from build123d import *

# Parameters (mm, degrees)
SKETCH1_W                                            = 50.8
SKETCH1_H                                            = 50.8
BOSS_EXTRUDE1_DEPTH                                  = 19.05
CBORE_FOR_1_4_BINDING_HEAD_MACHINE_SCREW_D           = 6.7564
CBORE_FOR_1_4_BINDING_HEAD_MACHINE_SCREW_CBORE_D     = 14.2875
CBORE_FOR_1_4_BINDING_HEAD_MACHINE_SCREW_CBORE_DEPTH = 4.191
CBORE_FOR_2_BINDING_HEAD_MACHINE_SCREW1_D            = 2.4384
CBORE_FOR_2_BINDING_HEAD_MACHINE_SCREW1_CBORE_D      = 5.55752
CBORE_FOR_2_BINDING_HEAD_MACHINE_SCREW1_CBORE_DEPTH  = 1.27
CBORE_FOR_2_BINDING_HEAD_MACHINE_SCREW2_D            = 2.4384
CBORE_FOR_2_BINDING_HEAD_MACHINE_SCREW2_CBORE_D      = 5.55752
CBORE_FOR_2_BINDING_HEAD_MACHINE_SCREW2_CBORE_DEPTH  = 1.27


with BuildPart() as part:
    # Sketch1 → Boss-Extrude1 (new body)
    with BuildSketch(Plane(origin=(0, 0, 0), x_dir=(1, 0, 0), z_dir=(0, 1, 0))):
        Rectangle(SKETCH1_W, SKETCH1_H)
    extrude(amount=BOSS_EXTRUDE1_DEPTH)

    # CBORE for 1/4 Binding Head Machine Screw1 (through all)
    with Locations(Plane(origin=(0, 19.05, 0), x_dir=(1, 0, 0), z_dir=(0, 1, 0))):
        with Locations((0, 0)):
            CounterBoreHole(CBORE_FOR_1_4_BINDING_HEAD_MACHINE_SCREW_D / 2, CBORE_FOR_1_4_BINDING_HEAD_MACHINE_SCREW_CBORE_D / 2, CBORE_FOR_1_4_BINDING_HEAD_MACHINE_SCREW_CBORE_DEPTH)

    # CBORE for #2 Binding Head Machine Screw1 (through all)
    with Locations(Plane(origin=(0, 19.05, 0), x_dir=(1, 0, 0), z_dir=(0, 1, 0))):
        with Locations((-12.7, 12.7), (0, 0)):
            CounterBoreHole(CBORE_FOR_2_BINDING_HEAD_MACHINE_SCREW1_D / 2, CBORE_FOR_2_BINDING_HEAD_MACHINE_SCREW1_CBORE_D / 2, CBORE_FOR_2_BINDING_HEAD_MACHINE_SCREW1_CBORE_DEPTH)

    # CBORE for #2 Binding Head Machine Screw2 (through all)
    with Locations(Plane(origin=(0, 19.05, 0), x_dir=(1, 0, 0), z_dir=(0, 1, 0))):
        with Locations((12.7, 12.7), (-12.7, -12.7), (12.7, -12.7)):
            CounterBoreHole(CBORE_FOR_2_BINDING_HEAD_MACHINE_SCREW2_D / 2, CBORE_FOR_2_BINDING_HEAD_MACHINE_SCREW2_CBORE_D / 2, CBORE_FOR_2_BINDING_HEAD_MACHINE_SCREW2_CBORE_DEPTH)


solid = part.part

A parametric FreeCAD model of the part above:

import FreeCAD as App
import Part
import Sketcher
from FreeCAD import Vector
Q = App.Units.Quantity

doc = App.newDocument("Part")
body = doc.addObject("PartDesign::Body", "Body")

# Sketch on XZ plane
sketch1 = body.newObject("Sketcher::SketchObject", "Sketch")
sketch1.AttachmentSupport = (doc.getObject("XZ_Plane"), [""])
sketch1.MapMode = "FlatFace"
sketch1.addGeometry(Part.LineSegment(Vector(-25.4, -25.4, 0), Vector(-25.4, 25.4, 0)), False)
sketch1.addGeometry(Part.LineSegment(Vector(-25.4, 25.4, 0), Vector(25.4, 25.4, 0)), False)
sketch1.addGeometry(Part.LineSegment(Vector(25.4, 25.4, 0), Vector(25.4, -25.4, 0)), False)
sketch1.addGeometry(Part.LineSegment(Vector(25.4, -25.4, 0), Vector(-25.4, -25.4, 0)), False)
sketch1.addConstraint(Sketcher.Constraint("Coincident", 0, 2, 1, 1))
sketch1.addConstraint(Sketcher.Constraint("Coincident", 1, 2, 2, 1))
sketch1.addConstraint(Sketcher.Constraint("Coincident", 2, 2, 3, 1))
sketch1.addConstraint(Sketcher.Constraint("Coincident", 3, 2, 0, 1))
sketch1.addConstraint(Sketcher.Constraint("Vertical", 0))
sketch1.addConstraint(Sketcher.Constraint("Horizontal", 1))
sketch1.addConstraint(Sketcher.Constraint("Vertical", 2))
sketch1.addConstraint(Sketcher.Constraint("Horizontal", 3))
sketch1.addConstraint(Sketcher.Constraint("Symmetric", 0, 2, 2, 2, -1, 1))
sketch1.addConstraint(Sketcher.Constraint("Equal", 3, 0))
sketch1.addConstraint(Sketcher.Constraint("DistanceX", 1, 1, 1, 2, Q("2 in")))
pad1 = body.newObject("PartDesign::Pad", "Pad")
pad1.Profile = sketch1
pad1.Length = Q("0.75 in")
pad1.Reversed = True

# Sketch on XZ plane
sketch2 = body.newObject("Sketcher::SketchObject", "Sketch001")
sketch2.AttachmentSupport = (doc.getObject("XZ_Plane"), [""])
sketch2.MapMode = "FlatFace"
sketch2.AttachmentOffset = App.Placement(Vector(0, 0, -0.75 * 25.4), App.Rotation())
sketch2.addGeometry(Part.Circle(Vector(0, 0, 0), Vector(0, 0, 1), 3.3782), False)
sketch2.addConstraint(Sketcher.Constraint("Coincident", 0, 3, -1, 1))
sketch2.addConstraint(Sketcher.Constraint("Diameter", 0, Q("0.266 in")))
doc.recompute()
hole = body.newObject("PartDesign::Hole", "Hole")
hole.Profile = sketch2
hole.ThreadType = "None"
hole.Diameter = Q("0.266 in")
hole.DepthType = "ThroughAll"
hole.HoleCutType = "Counterbore"
hole.HoleCutDiameter = Q("0.5625 in")
hole.HoleCutDepth = Q("0.165 in")
hole.Reversed = True

# Sketch on XZ plane
sketch3 = body.newObject("Sketcher::SketchObject", "Sketch002")
sketch3.AttachmentSupport = (doc.getObject("XZ_Plane"), [""])
sketch3.MapMode = "FlatFace"
sketch3.AttachmentOffset = App.Placement(Vector(0, 0, -0.75 * 25.4), App.Rotation())
sketch3.addGeometry(Part.Circle(Vector(-12.7, -12.7, 0), Vector(0, 0, 1), 1.2192), False)
sketch3.addGeometry(Part.Circle(Vector(0, 0, 0), Vector(0, 0, 1), 1.2192), False)
sketch3.addConstraint(Sketcher.Constraint("Coincident", 1, 3, -1, 1))
sketch3.addConstraint(Sketcher.Constraint("Equal", 0, 1))
sketch3.addConstraint(Sketcher.Constraint("Diameter", 0, Q("0.096 in")))
sketch3.addConstraint(Sketcher.Constraint("DistanceX", 0, 3, -1, 1, Q("0.5 in")))
sketch3.addConstraint(Sketcher.Constraint("DistanceY", 0, 3, -1, 1, Q("0.5 in")))
doc.recompute()
hole2 = body.newObject("PartDesign::Hole", "Hole001")
hole2.Profile = sketch3
hole2.ThreadType = "None"
hole2.Diameter = Q("0.096 in")
hole2.DepthType = "ThroughAll"
hole2.HoleCutType = "Counterbore"
hole2.HoleCutDiameter = Q("0.2188 in")
hole2.HoleCutDepth = Q("0.05 in")
hole2.Reversed = True

# Sketch on XZ plane
sketch4 = body.newObject("Sketcher::SketchObject", "Sketch003")
sketch4.AttachmentSupport = (doc.getObject("XZ_Plane"), [""])
sketch4.MapMode = "FlatFace"
sketch4.AttachmentOffset = App.Placement(Vector(0, 0, -0.75 * 25.4), App.Rotation())
sketch4.addGeometry(Part.Circle(Vector(12.7, -12.7, 0), Vector(0, 0, 1), 1.2192), False)
sketch4.addGeometry(Part.Circle(Vector(-12.7, 12.7, 0), Vector(0, 0, 1), 1.2192), False)
sketch4.addGeometry(Part.Circle(Vector(12.7, 12.7, 0), Vector(0, 0, 1), 1.2192), False)
sketch4.addConstraint(Sketcher.Constraint("Equal", 0, 1))
sketch4.addConstraint(Sketcher.Constraint("Equal", 1, 2))
sketch4.addConstraint(Sketcher.Constraint("Symmetric", 0, 3, 1, 3, -1, 1))
sketch4.addConstraint(Sketcher.Constraint("Symmetric", 1, 3, 2, 3, -2))
sketch4.addConstraint(Sketcher.Constraint("Diameter", 0, Q("0.096 in")))
sketch4.addConstraint(Sketcher.Constraint("DistanceX", 1, 3, 0, 3, Q("1 in")))
sketch4.addConstraint(Sketcher.Constraint("DistanceY", 0, 3, 1, 3, Q("1 in")))
doc.recompute()
hole3 = body.newObject("PartDesign::Hole", "Hole002")
hole3.Profile = sketch4
hole3.ThreadType = "None"
hole3.Diameter = Q("0.096 in")
hole3.DepthType = "ThroughAll"
hole3.HoleCutType = "Counterbore"
hole3.HoleCutDiameter = Q("0.2188 in")
hole3.HoleCutDepth = Q("0.05 in")
hole3.Reversed = True

doc.recompute()
